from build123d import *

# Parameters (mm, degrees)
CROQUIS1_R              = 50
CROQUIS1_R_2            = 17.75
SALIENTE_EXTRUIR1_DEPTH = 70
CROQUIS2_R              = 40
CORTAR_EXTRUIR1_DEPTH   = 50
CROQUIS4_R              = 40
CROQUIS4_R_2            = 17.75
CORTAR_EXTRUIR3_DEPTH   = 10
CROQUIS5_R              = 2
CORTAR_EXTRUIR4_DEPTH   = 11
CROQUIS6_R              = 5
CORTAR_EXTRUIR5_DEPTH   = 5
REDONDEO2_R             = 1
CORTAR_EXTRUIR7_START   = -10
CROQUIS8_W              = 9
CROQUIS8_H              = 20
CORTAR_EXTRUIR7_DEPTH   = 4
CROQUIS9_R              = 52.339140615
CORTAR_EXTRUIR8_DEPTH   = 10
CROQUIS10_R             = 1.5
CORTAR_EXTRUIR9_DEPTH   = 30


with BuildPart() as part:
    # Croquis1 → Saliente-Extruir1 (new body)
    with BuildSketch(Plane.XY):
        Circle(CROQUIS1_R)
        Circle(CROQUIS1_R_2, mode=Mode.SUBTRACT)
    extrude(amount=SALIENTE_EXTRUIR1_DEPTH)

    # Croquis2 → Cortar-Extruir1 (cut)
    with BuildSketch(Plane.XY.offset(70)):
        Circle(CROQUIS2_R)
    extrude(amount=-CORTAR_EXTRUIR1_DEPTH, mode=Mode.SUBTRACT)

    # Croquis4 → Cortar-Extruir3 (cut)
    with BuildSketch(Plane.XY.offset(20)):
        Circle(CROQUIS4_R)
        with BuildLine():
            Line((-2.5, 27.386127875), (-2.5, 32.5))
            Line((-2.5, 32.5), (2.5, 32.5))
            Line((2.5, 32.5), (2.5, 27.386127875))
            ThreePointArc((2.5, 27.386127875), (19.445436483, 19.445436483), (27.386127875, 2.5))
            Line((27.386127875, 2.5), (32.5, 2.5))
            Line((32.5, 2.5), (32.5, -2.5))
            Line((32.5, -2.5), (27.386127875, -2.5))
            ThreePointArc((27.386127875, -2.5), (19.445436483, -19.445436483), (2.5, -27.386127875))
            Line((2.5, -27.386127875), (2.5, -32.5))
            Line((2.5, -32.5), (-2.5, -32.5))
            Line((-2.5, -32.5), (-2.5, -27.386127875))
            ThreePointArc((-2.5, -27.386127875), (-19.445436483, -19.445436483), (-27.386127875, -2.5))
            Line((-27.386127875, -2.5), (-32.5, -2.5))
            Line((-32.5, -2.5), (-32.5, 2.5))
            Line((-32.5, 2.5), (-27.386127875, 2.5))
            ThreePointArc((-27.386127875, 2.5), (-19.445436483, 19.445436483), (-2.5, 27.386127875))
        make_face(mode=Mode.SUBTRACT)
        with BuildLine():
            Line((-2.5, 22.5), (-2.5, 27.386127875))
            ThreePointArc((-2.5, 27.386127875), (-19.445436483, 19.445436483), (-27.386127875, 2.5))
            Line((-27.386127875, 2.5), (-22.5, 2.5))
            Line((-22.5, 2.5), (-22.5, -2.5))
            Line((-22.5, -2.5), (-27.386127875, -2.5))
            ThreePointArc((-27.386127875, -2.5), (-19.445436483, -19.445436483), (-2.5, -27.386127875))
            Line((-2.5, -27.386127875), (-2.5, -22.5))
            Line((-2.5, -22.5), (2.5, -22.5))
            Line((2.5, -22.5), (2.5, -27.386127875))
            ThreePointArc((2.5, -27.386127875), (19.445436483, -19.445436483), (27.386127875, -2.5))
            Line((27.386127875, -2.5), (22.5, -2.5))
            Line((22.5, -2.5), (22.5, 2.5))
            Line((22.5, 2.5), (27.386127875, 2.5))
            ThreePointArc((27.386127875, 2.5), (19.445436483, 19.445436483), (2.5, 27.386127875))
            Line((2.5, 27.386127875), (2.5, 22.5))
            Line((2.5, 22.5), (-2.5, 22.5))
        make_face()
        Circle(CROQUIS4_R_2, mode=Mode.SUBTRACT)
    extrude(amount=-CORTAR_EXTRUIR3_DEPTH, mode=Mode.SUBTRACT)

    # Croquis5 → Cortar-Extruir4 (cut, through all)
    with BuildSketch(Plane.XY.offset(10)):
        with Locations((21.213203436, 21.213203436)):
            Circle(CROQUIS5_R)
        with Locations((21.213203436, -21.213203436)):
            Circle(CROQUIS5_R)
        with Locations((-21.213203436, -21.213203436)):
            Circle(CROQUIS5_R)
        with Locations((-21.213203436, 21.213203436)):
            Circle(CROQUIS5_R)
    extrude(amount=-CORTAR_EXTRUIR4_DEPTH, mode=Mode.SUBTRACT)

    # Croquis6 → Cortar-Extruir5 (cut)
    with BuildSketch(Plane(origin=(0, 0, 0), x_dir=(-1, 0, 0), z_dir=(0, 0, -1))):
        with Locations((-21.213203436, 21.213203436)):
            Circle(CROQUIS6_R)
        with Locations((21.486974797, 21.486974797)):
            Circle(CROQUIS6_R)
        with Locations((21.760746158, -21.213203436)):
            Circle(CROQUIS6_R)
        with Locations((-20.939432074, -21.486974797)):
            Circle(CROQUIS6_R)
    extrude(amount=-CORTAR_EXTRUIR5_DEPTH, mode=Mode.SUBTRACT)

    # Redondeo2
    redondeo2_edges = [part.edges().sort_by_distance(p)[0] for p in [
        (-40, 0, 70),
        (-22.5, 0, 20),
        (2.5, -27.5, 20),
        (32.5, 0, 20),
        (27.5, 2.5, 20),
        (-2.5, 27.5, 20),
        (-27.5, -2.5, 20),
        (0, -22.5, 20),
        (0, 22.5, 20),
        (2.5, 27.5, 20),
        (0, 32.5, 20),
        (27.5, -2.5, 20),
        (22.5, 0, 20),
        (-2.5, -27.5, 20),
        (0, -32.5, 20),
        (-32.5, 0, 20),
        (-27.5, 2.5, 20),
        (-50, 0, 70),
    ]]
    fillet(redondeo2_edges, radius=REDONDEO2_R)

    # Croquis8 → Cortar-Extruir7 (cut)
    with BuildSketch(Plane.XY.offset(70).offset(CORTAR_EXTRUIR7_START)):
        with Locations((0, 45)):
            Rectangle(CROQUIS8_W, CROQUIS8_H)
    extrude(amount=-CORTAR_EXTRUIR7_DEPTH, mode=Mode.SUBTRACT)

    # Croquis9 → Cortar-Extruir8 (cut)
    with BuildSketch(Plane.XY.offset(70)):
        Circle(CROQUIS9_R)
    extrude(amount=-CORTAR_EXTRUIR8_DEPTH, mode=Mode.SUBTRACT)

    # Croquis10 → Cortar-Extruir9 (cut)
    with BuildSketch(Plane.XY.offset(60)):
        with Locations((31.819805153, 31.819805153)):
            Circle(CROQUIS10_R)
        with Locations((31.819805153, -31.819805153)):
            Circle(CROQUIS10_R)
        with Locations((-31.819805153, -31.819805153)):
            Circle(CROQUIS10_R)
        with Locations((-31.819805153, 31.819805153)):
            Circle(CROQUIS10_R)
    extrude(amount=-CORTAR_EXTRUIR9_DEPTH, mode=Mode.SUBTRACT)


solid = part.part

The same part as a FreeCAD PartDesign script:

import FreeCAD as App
import Part
import Sketcher

V = App.Vector


def edges_at(feature, points):
    """Names of the edges that pass closest to the given points."""
    edges = feature.Shape.Edges
    near = lambda p: min(range(len(edges)), key=lambda i: edges[i].distToShape(Part.Vertex(*p))[0])
    return sorted({f"Edge{near(p) + 1}" for p in points})

doc = App.newDocument("Part")
body = doc.addObject("PartDesign::Body", "Body")

# Sketch on XY plane
sketch1 = doc.addObject("Sketcher::SketchObject", "Sketch")
body.addObject(sketch1)
sketch1.AttachmentSupport = (doc.XY_Plane, [""])
sketch1.MapMode = "FlatFace"
sketch1.addGeometry([
    Part.Circle(V(0, 0, 0), V(0, 0, 1), 50),
    Part.Circle(V(0, 0, 0), V(0, 0, 1), 18),
], False)
sketch1.addConstraint([
    Sketcher.Constraint("Coincident", 0, 3, -1, 1),
    Sketcher.Constraint("Coincident", 1, 3, -1, 1),
    Sketcher.Constraint("Diameter", 0, 100.0),
    Sketcher.Constraint("Diameter", 1, 35.5),
])
pad1 = doc.addObject("PartDesign::Pad", "Pad")
body.addObject(pad1)
pad1.Profile = sketch1
pad1.Length = 70

# Sketch on XY plane
sketch2 = doc.addObject("Sketcher::SketchObject", "Sketch001")
body.addObject(sketch2)
sketch2.AttachmentSupport = (doc.XY_Plane, [""])
sketch2.MapMode = "FlatFace"
sketch2.AttachmentOffset = App.Placement(V(0, 0, 70), App.Rotation())
sketch2.addGeometry(Part.Circle(V(0, 0, 0), V(0, 0, 1), 40), False)
sketch2.addConstraint([
    Sketcher.Constraint("Coincident", 0, 3, -1, 1),
    Sketcher.Constraint("Diameter", 0, 80.0),
])
pocket1 = doc.addObject("PartDesign::Pocket", "Pocket")
body.addObject(pocket1)
pocket1.Profile = sketch2
pocket1.Length = 50

# Sketch on XY plane
sketch3 = doc.addObject("Sketcher::SketchObject", "Sketch002")
body.addObject(sketch3)
sketch3.AttachmentSupport = (doc.XY_Plane, [""])
sketch3.MapMode = "FlatFace"
sketch3.AttachmentOffset = App.Placement(V(0, 0, 20), App.Rotation())
sketch3.addGeometry([
    Part.Circle(V(0, 0, 0), V(0, 0, 1), 40),  # 0
    Part.LineSegment(V(-2, -32, 0), V(-2, -22, 0)),  # 1
    Part.LineSegment(V(-2, -22, 0), V(2, -22, 0)),  # 2
    Part.LineSegment(V(2, -22, 0), V(2, -32, 0)),  # 3
    Part.LineSegment(V(2, -32, 0), V(-2, -32, 0)),  # 4
    Part.LineSegment(V(-32, 2, 0), V(-22, 2, 0)),  # 5
    Part.LineSegment(V(-22, 2, 0), V(-22, -2, 0)),  # 6
    Part.LineSegment(V(-22, -2, 0), V(-32, -2, 0)),  # 7
    Part.LineSegment(V(-32, -2, 0), V(-32, 2, 0)),  # 8
    Part.Circle(V(0, 0, 0), V(0, 0, 1), 18),  # 9
    Part.LineSegment(V(32, -2, 0), V(22, -2, 0)),  # 10
    Part.LineSegment(V(22, -2, 0), V(22, 2, 0)),  # 11
    Part.LineSegment(V(22, 2, 0), V(32, 2, 0)),  # 12
    Part.LineSegment(V(32, 2, 0), V(32, -2, 0)),  # 13
    Part.LineSegment(V(2, 32, 0), V(2, 22, 0)),  # 14
    Part.LineSegment(V(2, 22, 0), V(-2, 22, 0)),  # 15
    Part.LineSegment(V(-2, 22, 0), V(-2, 32, 0)),  # 16
    Part.LineSegment(V(-2, 32, 0), V(2, 32, 0)),  # 17
], False)
sketch3.addConstraint([
    Sketcher.Constraint("Coincident", 1, 2, 2, 1),
    Sketcher.Constraint("Coincident", 2, 2, 3, 1),
    Sketcher.Constraint("Coincident", 3, 2, 4, 1),
    Sketcher.Constraint("Coincident", 4, 2, 1, 1),
    Sketcher.Constraint("Coincident", 5, 2, 6, 1),
    Sketcher.Constraint("Coincident", 6, 2, 7, 1),
    Sketcher.Constraint("Coincident", 7, 2, 8, 1),
    Sketcher.Constraint("Coincident", 8, 2, 5, 1),
    Sketcher.Constraint("Coincident", 10, 2, 11, 1),
    Sketcher.Constraint("Coincident", 11, 2, 12, 1),
    Sketcher.Constraint("Coincident", 12, 2, 13, 1),
    Sketcher.Constraint("Coincident", 13, 2, 10, 1),
    Sketcher.Constraint("Coincident", 14, 2, 15, 1),
    Sketcher.Constraint("Coincident", 15, 2, 16, 1),
    Sketcher.Constraint("Coincident", 16, 2, 17, 1),
    Sketcher.Constraint("Coincident", 17, 2, 14, 1),
    Sketcher.Constraint("Vertical", 1),
    Sketcher.Constraint("Horizontal", 2),
    Sketcher.Constraint("Vertical", 3),
    Sketcher.Constraint("Horizontal", 4),
    Sketcher.Constraint("Horizontal", 5),
    Sketcher.Constraint("Vertical", 6),
    Sketcher.Constraint("Horizontal", 7),
    Sketcher.Constraint("Vertical", 8),
    Sketcher.Constraint("Horizontal", 10),
    Sketcher.Constraint("Vertical", 11),
    Sketcher.Constraint("Horizontal", 12),
    Sketcher.Constraint("Vertical", 13),
    Sketcher.Constraint("Vertical", 14),
    Sketcher.Constraint("Horizontal", 15),
    Sketcher.Constraint("Vertical", 16),
    Sketcher.Constraint("Horizontal", 17),
    Sketcher.Constraint("Coincident", 0, 3, -1, 1),
    Sketcher.Constraint("Coincident", 9, 3, -1, 1),
    Sketcher.Constraint("Symmetric", 5, 2, 10, 2, -1, 1),
    Sketcher.Constraint("Symmetric", 7, 2, 12, 2, -1, 1),
    Sketcher.Constraint("Symmetric", 1, 2, 14, 2, -1, 1),
    Sketcher.Constraint("Symmetric", 3, 2, 16, 2, -1, 1),
    Sketcher.Constraint("Horizontal", 7, 2, 10, 2),
    Sketcher.Constraint("Vertical", 3, 2, 14, 2),
    Sketcher.Constraint("Equal", 12, 1),
    Sketcher.Constraint("Equal", 17, 6),
    Sketcher.Constraint("Diameter", 0, 80.0),
    Sketcher.Constraint("Diameter", 9, 35.5),
    Sketcher.Constraint("DistanceX", 2, 1, 2, 2, 5.0),
    Sketcher.Constraint("DistanceX", 5, 1, 5, 2, 10.0),
    Sketcher.Constraint("DistanceX", 5, 2, 1, 2, 20.0),
    Sketcher.Constraint("DistanceY", 1, 2, 5, 2, 25.0),
])
pocket2 = doc.addObject("PartDesign::Pocket", "Pocket001")
body.addObject(pocket2)
pocket2.Profile = sketch3
pocket2.Length = 10

# Sketch on XY plane
sketch4 = doc.addObject("Sketcher::SketchObject", "Sketch003")
body.addObject(sketch4)
sketch4.AttachmentSupport = (doc.XY_Plane, [""])
sketch4.MapMode = "FlatFace"
sketch4.AttachmentOffset = App.Placement(V(0, 0, 10), App.Rotation())
sketch4.addGeometry([
    Part.Circle(V(21.2, 21.2, 0), V(0, 0, 1), 2),
    Part.Circle(V(21.2, -21.2, 0), V(0, 0, 1), 2),
    Part.Circle(V(-21.2, -21.2, 0), V(0, 0, 1), 2),
    Part.Circle(V(-21.2, 21.2, 0), V(0, 0, 1), 2),
], False)
sketch4.addConstraint([
    Sketcher.Constraint("Equal", 0, 1),
    Sketcher.Constraint("Equal", 1, 2),
    Sketcher.Constraint("Equal", 2, 3),
    Sketcher.Constraint("Symmetric", 0, 3, 2, 3, -1, 1),
    Sketcher.Constraint("Symmetric", 1, 3, 3, 3, -1, 1),
    Sketcher.Constraint("Symmetric", 1, 3, 2, 3, -2),
    Sketcher.Constraint("Diameter", 0, 4.0),
    Sketcher.Constraint("DistanceX", -1, 1, 0, 3, 21.213203),
    Sketcher.Constraint("DistanceY", -1, 1, 0, 3, 21.213203),
])
pocket3 = doc.addObject("PartDesign::Pocket", "Pocket002")
body.addObject(pocket3)
pocket3.Profile = sketch4
pocket3.Type = "ThroughAll"

# Sketch on XY plane
sketch5 = doc.addObject("Sketcher::SketchObject", "Sketch004")
body.addObject(sketch5)
sketch5.AttachmentSupport = (doc.XY_Plane, [""])
sketch5.MapMode = "FlatFace"
sketch5.addGeometry([
    Part.Circle(V(21, 21, 0), V(0, 0, 1), 5),
    Part.Circle(V(-21, 21, 0), V(0, 0, 1), 5),
    Part.Circle(V(-22, -21, 0), V(0, 0, 1), 5),
    Part.Circle(V(21, -21, 0), V(0, 0, 1), 5),
], False)
sketch5.addConstraint([
    Sketcher.Constraint("Equal", 0, 1),
    Sketcher.Constraint("Equal", 1, 2),
    Sketcher.Constraint("Equal", 2, 3),
    Sketcher.Constraint("Diameter", 0, 10.0),
    Sketcher.Constraint("DistanceX", 1, 3, 0, 3, 42.700178),
    Sketcher.Constraint("DistanceY", 0, 3, 1, 3, 0.273771),
    Sketcher.Constraint("DistanceX", 2, 3, 1, 3, 0.273771),
    Sketcher.Constraint("DistanceY", 2, 3, 1, 3, 42.700178),
    Sketcher.Constraint("DistanceX", 2, 3, 3, 3, 42.700178),
    Sketcher.Constraint("DistanceY", 3, 3, 2, 3, 0.273771),
    Sketcher.Constraint("DistanceX", -1, 1, 0, 3, 21.213203),
    Sketcher.Constraint("DistanceY", -1, 1, 0, 3, 21.213203),
])
pocket4 = doc.addObject("PartDesign::Pocket", "Pocket003")
body.addObject(pocket4)
pocket4.Profile = sketch5
pocket4.Length = 5
pocket4.Reversed = True
doc.recompute()

fillet = doc.addObject("PartDesign::Fillet", "Fillet")
body.addObject(fillet)
fillet.Base = (pocket4, edges_at(pocket4, [
    (-40, 0, 70),
    (-22.5, 0, 20),
    (2.5, -27.5, 20),
    (32.5, 0, 20),
    (27.5, 2.5, 20),
    (-2.5, 27.5, 20),
    (-27.5, -2.5, 20),
    (0, -22.5, 20),
    (0, 22.5, 20),
    (2.5, 27.5, 20),
    (0, 32.5, 20),
    (27.5, -2.5, 20),
    (22.5, 0, 20),
    (-2.5, -27.5, 20),
    (0, -32.5, 20),
    (-32.5, 0, 20),
    (-27.5, 2.5, 20),
    (-50, 0, 70),
]))
fillet.Radius = 1

# Sketch on XY plane
sketch6 = doc.addObject("Sketcher::SketchObject", "Sketch005")
body.addObject(sketch6)
sketch6.AttachmentSupport = (doc.XY_Plane, [""])
sketch6.MapMode = "FlatFace"
sketch6.AttachmentOffset = App.Placement(V(0, 0, 60), App.Rotation())
sketch6.addGeometry([
    Part.LineSegment(V(-4, 55, 0), V(-4, 35, 0)),
    Part.LineSegment(V(-4, 35, 0), V(4, 35, 0)),
    Part.LineSegment(V(4, 35, 0), V(4, 55, 0)),
    Part.LineSegment(V(4, 55, 0), V(-4, 55, 0)),
], False)
sketch6.addConstraint([
    Sketcher.Constraint("Coincident", 0, 2, 1, 1),
    Sketcher.Constraint("Coincident", 1, 2, 2, 1),
    Sketcher.Constraint("Coincident", 2, 2, 3, 1),
    Sketcher.Constraint("Coincident", 3, 2, 0, 1),
    Sketcher.Constraint("Vertical", 0),
    Sketcher.Constraint("Horizontal", 1),
    Sketcher.Constraint("Vertical", 2),
    Sketcher.Constraint("Horizontal", 3),
    Sketcher.Constraint("DistanceX", 1, 1, 1, 2, 9.0),
    Sketcher.Constraint("DistanceY", 0, 2, 0, 1, 20.0),
    Sketcher.Constraint("DistanceY", -1, 1, 0, 2, 35.0),
    Sketcher.Constraint("DistanceX", 0, 2, -1, 1, 4.5),
])
pocket5 = doc.addObject("PartDesign::Pocket", "Pocket004")
body.addObject(pocket5)
pocket5.Profile = sketch6
pocket5.Length = 4

# Sketch on XY plane
sketch7 = doc.addObject("Sketcher::SketchObject", "Sketch006")
body.addObject(sketch7)
sketch7.AttachmentSupport = (doc.XY_Plane, [""])
sketch7.MapMode = "FlatFace"
sketch7.AttachmentOffset = App.Placement(V(0, 0, 70), App.Rotation())
sketch7.addGeometry(Part.Circle(V(0, 0, 0), V(0, 0, 1), 52), False)
sketch7.addConstraint([
    Sketcher.Constraint("Coincident", 0, 3, -1, 1),
    Sketcher.Constraint("Diameter", 0, 104.678281),
])
pocket6 = doc.addObject("PartDesign::Pocket", "Pocket005")
body.addObject(pocket6)
pocket6.Profile = sketch7
pocket6.Length = 10

# Sketch on XY plane
sketch8 = doc.addObject("Sketcher::SketchObject", "Sketch007")
body.addObject(sketch8)
sketch8.AttachmentSupport = (doc.XY_Plane, [""])
sketch8.MapMode = "FlatFace"
sketch8.AttachmentOffset = App.Placement(V(0, 0, 60), App.Rotation())
sketch8.addGeometry([
    Part.Circle(V(31.8, 31.8, 0), V(0, 0, 1), 1.5),
    Part.Circle(V(31.8, -31.8, 0), V(0, 0, 1), 1.5),
    Part.Circle(V(-31.8, -31.8, 0), V(0, 0, 1), 1.5),
    Part.Circle(V(-31.8, 31.8, 0), V(0, 0, 1), 1.5),
], False)
sketch8.addConstraint([
    Sketcher.Constraint("Equal", 0, 1),
    Sketcher.Constraint("Equal", 1, 2),
    Sketcher.Constraint("Equal", 2, 3),
    Sketcher.Constraint("Symmetric", 0, 3, 2, 3, -1, 1),
    Sketcher.Constraint("Symmetric", 1, 3, 3, 3, -1, 1),
    Sketcher.Constraint("Symmetric", 1, 3, 2, 3, -2),
    Sketcher.Constraint("Diameter", 0, 3.0),
    Sketcher.Constraint("DistanceY", 1, 3, 0, 3, 63.63961),
    Sketcher.Constraint("DistanceX", 2, 3, 1, 3, 63.63961),
])
pocket7 = doc.addObject("PartDesign::Pocket", "Pocket006")
body.addObject(pocket7)
pocket7.Profile = sketch8
pocket7.Length = 30

doc.recompute()
